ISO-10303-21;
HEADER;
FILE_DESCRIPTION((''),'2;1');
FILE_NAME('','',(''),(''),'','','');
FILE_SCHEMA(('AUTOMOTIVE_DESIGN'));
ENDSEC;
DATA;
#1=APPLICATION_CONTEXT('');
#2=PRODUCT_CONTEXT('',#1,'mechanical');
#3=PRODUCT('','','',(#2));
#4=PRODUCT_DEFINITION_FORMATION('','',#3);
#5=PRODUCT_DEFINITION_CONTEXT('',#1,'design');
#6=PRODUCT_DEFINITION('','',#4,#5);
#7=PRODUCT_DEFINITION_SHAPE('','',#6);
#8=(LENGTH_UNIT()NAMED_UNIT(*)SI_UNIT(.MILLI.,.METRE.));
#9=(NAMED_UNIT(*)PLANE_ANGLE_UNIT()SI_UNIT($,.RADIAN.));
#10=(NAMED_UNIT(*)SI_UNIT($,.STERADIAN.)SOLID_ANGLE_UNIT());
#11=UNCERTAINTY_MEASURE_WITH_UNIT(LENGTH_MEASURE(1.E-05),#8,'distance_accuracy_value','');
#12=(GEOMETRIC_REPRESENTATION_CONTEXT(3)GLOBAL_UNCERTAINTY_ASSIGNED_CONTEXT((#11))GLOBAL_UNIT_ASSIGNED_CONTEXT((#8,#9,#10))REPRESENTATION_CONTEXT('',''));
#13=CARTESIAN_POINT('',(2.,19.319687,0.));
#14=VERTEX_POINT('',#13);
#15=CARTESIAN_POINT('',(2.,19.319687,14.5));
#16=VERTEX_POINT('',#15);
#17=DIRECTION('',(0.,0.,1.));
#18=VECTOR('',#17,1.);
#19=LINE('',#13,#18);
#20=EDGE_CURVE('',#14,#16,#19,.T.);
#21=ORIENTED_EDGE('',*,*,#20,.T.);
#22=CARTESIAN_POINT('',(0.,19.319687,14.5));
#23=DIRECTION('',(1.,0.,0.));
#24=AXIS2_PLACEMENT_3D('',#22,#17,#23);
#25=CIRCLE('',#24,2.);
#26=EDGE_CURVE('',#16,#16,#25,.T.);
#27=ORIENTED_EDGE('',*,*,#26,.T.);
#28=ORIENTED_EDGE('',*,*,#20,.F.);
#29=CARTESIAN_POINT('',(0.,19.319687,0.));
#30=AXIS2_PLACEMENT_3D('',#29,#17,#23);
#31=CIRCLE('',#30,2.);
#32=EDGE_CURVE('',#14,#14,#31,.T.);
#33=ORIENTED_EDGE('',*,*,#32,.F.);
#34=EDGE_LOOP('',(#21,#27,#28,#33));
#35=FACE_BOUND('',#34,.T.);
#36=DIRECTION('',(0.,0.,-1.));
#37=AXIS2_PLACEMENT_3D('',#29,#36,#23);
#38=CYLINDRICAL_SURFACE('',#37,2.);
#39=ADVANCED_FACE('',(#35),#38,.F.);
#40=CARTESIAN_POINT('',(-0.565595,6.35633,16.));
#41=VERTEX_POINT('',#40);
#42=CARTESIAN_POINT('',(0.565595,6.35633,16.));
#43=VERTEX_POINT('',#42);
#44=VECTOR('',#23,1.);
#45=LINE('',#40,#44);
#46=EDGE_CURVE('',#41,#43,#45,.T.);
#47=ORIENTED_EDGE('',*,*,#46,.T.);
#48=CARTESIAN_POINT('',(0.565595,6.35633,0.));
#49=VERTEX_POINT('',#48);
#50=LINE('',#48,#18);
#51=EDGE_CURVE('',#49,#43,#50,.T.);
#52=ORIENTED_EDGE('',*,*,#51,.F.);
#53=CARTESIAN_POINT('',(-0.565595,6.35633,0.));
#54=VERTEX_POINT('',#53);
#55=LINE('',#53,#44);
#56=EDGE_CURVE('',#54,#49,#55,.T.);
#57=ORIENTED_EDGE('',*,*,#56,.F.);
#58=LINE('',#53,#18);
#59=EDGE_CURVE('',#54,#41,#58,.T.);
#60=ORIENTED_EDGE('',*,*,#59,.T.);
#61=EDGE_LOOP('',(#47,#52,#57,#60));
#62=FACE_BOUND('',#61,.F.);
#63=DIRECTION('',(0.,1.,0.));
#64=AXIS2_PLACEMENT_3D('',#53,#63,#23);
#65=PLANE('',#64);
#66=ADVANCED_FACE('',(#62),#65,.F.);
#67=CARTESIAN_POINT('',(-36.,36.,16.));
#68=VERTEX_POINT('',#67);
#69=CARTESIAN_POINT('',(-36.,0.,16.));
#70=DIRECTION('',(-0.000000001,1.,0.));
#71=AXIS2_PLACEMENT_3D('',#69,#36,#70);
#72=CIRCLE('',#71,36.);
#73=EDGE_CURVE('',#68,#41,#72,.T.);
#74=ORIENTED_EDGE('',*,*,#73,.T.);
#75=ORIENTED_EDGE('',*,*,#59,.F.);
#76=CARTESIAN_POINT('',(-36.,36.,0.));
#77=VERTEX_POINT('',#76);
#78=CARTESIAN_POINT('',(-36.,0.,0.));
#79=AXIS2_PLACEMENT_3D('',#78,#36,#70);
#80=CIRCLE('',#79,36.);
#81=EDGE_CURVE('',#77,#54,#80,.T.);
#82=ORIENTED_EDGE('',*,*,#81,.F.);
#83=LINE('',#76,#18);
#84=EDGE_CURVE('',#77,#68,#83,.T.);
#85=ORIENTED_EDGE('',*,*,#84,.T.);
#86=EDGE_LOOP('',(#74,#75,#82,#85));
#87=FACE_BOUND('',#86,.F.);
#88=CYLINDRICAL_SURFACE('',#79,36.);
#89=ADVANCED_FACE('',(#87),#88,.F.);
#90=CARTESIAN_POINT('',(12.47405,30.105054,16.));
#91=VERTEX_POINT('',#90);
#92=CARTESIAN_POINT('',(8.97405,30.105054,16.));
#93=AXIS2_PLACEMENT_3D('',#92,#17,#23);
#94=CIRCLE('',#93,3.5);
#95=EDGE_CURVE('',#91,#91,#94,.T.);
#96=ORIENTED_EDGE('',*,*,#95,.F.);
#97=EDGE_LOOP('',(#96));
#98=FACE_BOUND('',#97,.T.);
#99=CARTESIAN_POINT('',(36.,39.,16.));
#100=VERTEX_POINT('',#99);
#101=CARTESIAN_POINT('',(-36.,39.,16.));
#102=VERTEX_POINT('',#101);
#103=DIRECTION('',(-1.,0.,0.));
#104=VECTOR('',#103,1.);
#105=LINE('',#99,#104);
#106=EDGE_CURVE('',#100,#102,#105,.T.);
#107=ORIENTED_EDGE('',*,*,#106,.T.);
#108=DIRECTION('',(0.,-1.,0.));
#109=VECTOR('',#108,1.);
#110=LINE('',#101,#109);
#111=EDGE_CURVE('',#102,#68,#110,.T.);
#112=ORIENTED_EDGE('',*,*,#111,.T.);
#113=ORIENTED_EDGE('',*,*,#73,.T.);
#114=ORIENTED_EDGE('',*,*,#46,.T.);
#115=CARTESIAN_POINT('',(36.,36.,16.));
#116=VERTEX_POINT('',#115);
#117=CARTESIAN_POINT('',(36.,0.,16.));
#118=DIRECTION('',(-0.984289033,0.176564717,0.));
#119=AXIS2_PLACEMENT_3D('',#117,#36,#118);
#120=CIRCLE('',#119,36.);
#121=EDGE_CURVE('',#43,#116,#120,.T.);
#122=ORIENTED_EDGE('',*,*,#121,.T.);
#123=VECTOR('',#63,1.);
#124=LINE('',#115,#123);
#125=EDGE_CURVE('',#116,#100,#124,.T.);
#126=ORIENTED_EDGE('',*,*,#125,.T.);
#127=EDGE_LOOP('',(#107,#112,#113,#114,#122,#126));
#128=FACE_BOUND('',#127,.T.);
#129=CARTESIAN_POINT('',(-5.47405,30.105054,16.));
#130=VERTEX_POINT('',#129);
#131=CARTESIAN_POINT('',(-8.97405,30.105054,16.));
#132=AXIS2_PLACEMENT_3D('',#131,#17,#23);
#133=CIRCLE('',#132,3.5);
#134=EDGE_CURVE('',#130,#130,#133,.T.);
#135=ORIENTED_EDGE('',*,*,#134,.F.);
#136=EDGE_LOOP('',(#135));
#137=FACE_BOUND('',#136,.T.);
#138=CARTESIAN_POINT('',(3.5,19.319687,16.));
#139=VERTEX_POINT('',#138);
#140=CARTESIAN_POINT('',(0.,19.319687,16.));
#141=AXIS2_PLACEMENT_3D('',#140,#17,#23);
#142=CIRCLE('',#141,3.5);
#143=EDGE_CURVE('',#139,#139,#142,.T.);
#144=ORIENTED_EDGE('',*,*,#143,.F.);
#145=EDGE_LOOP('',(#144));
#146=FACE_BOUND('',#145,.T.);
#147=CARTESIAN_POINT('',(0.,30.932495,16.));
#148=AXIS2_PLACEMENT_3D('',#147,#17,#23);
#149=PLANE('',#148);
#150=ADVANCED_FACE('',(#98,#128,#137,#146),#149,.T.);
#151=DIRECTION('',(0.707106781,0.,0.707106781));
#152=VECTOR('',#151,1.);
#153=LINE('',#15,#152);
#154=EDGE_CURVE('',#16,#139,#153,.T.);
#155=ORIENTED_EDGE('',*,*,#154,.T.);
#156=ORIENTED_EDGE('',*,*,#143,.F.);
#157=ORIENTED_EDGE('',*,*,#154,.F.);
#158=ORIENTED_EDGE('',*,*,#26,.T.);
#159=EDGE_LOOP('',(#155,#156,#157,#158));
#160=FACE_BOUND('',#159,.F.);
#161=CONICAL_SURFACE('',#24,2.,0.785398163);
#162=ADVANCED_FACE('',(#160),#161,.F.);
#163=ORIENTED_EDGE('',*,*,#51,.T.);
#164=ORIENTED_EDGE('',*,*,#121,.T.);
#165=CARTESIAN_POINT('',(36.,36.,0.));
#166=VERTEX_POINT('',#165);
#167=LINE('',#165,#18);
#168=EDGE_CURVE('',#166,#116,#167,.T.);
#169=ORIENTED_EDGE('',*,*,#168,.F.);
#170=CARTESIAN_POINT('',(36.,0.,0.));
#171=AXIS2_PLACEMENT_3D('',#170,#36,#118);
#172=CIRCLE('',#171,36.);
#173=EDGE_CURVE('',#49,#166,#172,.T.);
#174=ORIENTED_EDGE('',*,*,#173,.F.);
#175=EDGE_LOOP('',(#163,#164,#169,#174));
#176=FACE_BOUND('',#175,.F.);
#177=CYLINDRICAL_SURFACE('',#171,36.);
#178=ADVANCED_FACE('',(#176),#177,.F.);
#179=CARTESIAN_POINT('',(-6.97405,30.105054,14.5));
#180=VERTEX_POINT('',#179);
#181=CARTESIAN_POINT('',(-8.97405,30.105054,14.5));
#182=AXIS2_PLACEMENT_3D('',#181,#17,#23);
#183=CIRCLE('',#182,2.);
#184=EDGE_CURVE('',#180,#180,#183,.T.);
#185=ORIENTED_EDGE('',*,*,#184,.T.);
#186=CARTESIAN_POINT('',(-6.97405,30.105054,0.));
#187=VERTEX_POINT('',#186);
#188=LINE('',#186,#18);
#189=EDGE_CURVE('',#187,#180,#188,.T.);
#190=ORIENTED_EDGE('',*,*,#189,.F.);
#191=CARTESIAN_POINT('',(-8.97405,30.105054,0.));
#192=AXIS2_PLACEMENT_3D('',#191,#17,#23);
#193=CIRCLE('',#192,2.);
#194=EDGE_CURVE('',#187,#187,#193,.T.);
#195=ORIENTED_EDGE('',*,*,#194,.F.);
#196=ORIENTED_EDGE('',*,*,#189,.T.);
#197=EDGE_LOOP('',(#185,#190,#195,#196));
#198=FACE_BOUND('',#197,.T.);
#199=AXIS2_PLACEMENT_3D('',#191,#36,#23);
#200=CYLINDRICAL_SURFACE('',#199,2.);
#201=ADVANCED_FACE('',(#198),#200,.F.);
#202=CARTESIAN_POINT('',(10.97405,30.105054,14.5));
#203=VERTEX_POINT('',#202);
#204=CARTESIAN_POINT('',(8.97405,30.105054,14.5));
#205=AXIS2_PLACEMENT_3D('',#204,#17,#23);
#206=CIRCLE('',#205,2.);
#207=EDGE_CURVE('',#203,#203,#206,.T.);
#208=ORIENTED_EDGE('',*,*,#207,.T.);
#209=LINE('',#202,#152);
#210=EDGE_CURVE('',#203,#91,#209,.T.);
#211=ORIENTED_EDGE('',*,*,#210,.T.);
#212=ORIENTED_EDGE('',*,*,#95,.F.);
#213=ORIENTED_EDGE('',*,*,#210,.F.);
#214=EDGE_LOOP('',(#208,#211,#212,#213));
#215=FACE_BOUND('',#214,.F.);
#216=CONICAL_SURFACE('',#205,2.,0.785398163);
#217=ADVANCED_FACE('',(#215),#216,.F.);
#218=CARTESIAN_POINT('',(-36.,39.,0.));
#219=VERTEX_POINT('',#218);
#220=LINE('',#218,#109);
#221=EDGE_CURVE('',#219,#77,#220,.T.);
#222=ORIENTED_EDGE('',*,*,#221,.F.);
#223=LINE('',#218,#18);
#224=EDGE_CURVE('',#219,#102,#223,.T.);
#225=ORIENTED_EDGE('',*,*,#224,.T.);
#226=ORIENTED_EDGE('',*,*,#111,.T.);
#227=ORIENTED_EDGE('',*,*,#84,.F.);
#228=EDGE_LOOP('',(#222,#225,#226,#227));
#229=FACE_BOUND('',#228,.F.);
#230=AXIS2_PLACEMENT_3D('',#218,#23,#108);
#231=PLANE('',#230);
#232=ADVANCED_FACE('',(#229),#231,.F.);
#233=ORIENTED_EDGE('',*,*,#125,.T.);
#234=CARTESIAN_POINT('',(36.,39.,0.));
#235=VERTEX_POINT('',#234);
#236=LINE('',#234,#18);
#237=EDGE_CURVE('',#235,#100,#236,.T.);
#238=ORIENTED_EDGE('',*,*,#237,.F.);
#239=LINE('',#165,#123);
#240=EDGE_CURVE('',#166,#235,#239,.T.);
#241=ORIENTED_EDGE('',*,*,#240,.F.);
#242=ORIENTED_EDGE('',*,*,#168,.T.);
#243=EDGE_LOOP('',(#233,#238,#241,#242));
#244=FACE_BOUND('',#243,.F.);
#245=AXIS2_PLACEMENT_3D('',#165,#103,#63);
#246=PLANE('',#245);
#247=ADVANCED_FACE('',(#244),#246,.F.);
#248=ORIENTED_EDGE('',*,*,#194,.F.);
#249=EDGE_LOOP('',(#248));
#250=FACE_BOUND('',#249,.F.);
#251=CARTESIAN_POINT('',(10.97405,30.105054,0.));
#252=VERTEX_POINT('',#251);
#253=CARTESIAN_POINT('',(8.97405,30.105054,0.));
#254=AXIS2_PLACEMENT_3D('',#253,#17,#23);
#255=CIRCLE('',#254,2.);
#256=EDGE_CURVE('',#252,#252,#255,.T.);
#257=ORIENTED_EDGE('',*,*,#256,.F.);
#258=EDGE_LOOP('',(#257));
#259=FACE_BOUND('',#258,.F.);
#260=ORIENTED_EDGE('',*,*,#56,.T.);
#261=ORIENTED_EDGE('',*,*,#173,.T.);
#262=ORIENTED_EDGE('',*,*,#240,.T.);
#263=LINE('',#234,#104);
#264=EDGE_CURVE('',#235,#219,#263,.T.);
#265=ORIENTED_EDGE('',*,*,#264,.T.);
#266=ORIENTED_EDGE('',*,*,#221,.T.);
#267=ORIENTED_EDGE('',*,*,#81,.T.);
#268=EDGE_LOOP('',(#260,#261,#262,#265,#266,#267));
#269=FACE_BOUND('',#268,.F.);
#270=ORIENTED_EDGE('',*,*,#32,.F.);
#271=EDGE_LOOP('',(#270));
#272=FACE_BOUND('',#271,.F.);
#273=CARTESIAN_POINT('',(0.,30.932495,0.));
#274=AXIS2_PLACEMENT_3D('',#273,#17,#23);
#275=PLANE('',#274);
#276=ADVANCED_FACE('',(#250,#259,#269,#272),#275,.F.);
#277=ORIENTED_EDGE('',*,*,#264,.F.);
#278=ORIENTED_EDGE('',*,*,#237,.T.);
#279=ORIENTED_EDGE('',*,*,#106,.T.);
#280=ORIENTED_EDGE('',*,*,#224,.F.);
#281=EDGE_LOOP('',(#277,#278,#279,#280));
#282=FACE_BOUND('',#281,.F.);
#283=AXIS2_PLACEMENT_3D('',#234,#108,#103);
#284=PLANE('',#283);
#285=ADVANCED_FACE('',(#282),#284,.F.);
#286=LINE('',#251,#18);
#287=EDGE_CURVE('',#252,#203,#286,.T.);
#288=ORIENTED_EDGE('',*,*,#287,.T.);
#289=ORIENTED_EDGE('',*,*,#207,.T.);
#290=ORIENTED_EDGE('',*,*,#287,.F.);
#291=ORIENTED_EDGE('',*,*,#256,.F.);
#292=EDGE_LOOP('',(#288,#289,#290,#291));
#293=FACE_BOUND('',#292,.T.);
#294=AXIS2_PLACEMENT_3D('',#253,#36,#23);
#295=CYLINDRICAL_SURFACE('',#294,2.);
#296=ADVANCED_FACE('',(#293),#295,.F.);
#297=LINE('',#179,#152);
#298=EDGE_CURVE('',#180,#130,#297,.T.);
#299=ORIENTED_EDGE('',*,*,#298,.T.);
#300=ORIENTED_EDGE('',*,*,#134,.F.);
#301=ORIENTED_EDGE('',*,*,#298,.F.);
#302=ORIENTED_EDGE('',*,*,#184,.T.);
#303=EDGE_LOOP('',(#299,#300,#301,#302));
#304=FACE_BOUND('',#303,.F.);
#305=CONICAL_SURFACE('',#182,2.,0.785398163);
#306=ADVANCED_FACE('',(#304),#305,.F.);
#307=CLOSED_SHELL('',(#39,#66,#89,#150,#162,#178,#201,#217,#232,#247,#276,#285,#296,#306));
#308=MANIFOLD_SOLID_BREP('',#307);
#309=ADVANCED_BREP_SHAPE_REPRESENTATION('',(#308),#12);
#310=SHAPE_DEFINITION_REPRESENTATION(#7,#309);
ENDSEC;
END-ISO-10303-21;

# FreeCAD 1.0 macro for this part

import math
import FreeCAD as App
import Part
import Sketcher
from FreeCAD import Vector


def edges_at(feature, points):
    """Names of the edges that pass closest to the given points."""
    edges = feature.Shape.Edges
    near = lambda p: min(range(len(edges)), key=lambda i: edges[i].distToShape(Part.Vertex(*p))[0])
    return sorted({f"Edge{near(p) + 1}" for p in points})

doc = App.newDocument("Part")
body = doc.addObject("PartDesign::Body", "Body")

# Sketch on XY plane
sketch1 = doc.addObject("Sketcher::SketchObject", "Sketch")
body.addObject(sketch1)
sketch1.AttachmentSupport = (doc.XY_Plane, [""])
sketch1.MapMode = "FlatFace"
sketch1.addGeometry(Part.ArcOfCircle(Part.Circle(Vector(-36, 0, 0), Vector(0, 0, 1), 36), math.radians(10), math.radians(90)), False)
sketch1.addGeometry(Part.LineSegment(Vector(-0.6, 6.4, 0), Vector(0.6, 6.4, 0)), False)
sketch1.addGeometry(Part.ArcOfCircle(Part.Circle(Vector(36, 0, 0), Vector(0, 0, 1), 36), math.radians(90), math.radians(170)), False)
sketch1.addGeometry(Part.LineSegment(Vector(36, 36, 0), Vector(36, 39, 0)), False)
sketch1.addGeometry(Part.LineSegment(Vector(36, 39, 0), Vector(-36, 39, 0)), False)
sketch1.addGeometry(Part.LineSegment(Vector(-36, 39, 0), Vector(-36, 36, 0)), False)
sketch1.addGeometry(Part.Circle(Vector(0, 19.3, 0), Vector(0, 0, 1), 2), False)
sketch1.addGeometry(Part.Circle(Vector(-9, 30.1, 0), Vector(0, 0, 1), 2), False)
sketch1.addGeometry(Part.Circle(Vector(9, 30.1, 0), Vector(0, 0, 1), 2), False)
sketch1.addConstraint(Sketcher.Constraint("Coincident", 0, 1, 1, 1))
sketch1.addConstraint(Sketcher.Constraint("Coincident", 1, 2, 2, 2))
sketch1.addConstraint(Sketcher.Constraint("Coincident", 2, 1, 3, 1))
sketch1.addConstraint(Sketcher.Constraint("Coincident", 3, 2, 4, 1))
sketch1.addConstraint(Sketcher.Constraint("Coincident", 4, 2, 5, 1))
sketch1.addConstraint(Sketcher.Constraint("Coincident", 5, 2, 0, 2))
sketch1.addConstraint(Sketcher.Constraint("Horizontal", 1))
sketch1.addConstraint(Sketcher.Constraint("Vertical", 3))
sketch1.addConstraint(Sketcher.Constraint("Horizontal", 4))
sketch1.addConstraint(Sketcher.Constraint("Vertical", 5))
sketch1.addConstraint(Sketcher.Constraint("Equal", 0, 2))
sketch1.addConstraint(Sketcher.Constraint("Equal", 6, 7))
sketch1.addConstraint(Sketcher.Constraint("Equal", 7, 8))
sketch1.addConstraint(Sketcher.Constraint("Symmetric", 0, 3, 2, 3, -1, 1))
sketch1.addConstraint(Sketcher.Constraint("Symmetric", 7, 3, 8, 3, -2))
sketch1.addConstraint(Sketcher.Constraint("Symmetric", 2, 1, 5, 2, -2))
sketch1.addConstraint(Sketcher.Constraint("PointOnObject", 6, 3, -2))
sketch1.addConstraint(Sketcher.Constraint("Vertical", 0, 3, 4, 2))
sketch1.addConstraint(Sketcher.Constraint("Diameter", 6, 4.0))
sketch1.addConstraint(Sketcher.Constraint("Radius", 0, 36.0))
sketch1.addConstraint(Sketcher.Constraint("DistanceX", 4, 2, 4, 1, 72.0))
sketch1.addConstraint(Sketcher.Constraint("DistanceY", 3, 1, 3, 2, 3.0))
sketch1.addConstraint(Sketcher.Constraint("DistanceX", 1, 1, 1, 2, 1.13119))
sketch1.addConstraint(Sketcher.Constraint("DistanceX", 7, 3, 8, 3, 17.9481))
sketch1.addConstraint(Sketcher.Constraint("DistanceY", -1, 1, 6, 3, 19.319687))
sketch1.addConstraint(Sketcher.Constraint("DistanceY", -1, 1, 7, 3, 30.105054))
pad1 = doc.addObject("PartDesign::Pad", "Pad")
body.addObject(pad1)
pad1.Profile = sketch1
pad1.Length = 16
doc.recompute()

chamfer = doc.addObject("PartDesign::Chamfer", "Chamfer")
body.addObject(chamfer)
chamfer.Base = (pad1, edges_at(pad1, [(-10.974, 30.105, 16), (-2, 19.32, 16), (6.974, 30.105, 16)]))
chamfer.Size = 1.5

doc.recompute()
